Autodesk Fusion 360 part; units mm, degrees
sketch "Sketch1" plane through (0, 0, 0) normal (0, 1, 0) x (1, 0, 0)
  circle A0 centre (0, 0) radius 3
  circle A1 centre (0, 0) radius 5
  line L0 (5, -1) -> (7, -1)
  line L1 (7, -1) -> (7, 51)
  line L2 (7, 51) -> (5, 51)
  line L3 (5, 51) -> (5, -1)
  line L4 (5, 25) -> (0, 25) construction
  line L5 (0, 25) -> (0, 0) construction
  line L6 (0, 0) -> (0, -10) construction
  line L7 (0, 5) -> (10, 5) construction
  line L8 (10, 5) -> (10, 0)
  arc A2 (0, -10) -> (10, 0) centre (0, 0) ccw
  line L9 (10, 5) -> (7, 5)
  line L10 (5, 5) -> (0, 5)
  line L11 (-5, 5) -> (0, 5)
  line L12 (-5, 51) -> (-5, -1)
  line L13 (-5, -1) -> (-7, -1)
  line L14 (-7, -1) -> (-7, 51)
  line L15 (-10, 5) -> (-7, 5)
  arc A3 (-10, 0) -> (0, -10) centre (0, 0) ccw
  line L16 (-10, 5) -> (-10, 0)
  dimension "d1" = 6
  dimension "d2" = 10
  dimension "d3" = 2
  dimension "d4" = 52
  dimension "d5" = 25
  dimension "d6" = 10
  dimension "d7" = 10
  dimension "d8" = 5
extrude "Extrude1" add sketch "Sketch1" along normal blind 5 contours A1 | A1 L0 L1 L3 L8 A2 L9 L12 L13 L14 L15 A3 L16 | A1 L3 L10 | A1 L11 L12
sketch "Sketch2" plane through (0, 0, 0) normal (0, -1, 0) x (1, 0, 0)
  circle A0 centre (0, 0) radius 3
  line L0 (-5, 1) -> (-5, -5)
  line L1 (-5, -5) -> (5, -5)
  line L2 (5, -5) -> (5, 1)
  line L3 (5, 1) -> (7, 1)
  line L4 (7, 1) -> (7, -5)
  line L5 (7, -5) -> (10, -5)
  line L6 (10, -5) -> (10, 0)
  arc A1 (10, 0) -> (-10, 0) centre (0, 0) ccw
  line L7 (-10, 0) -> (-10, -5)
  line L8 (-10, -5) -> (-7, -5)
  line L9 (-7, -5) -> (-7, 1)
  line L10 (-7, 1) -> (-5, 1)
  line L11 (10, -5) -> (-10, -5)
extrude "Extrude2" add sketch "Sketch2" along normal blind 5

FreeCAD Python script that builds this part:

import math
import FreeCAD as App
import Part
import Sketcher

V = App.Vector

doc = App.newDocument("Part")
body = doc.addObject("PartDesign::Body", "Body")

# Sketch on XZ plane
sketch1 = doc.addObject("Sketcher::SketchObject", "Sketch")
body.addObject(sketch1)
sketch1.AttachmentSupport = (doc.XZ_Plane, [""])
sketch1.MapMode = "FlatFace"
sketch1.addGeometry(Part.LineSegment(V(5, 1, 0), V(5, -5, 0)), False)
sketch1.addGeometry(Part.LineSegment(V(5, -5, 0), V(-5, -5, 0)), False)
sketch1.addGeometry(Part.LineSegment(V(-5, -5, 0), V(-5, 1, 0)), False)
sketch1.addGeometry(Part.LineSegment(V(-5, 1, 0), V(-7, 1, 0)), False)
sketch1.addGeometry(Part.LineSegment(V(-7, 1, 0), V(-7, -5, 0)), False)
sketch1.addGeometry(Part.LineSegment(V(-7, -5, 0), V(-10, -5, 0)), False)
sketch1.addGeometry(Part.LineSegment(V(-10, -5, 0), V(-10, 0, 0)), False)
sketch1.addGeometry(Part.ArcOfCircle(Part.Circle(V(0, 0, 0), V(0, 0, 1), 10), math.radians(0), math.radians(180)), False)
sketch1.addGeometry(Part.LineSegment(V(10, 0, 0), V(10, -5, 0)), False)
sketch1.addGeometry(Part.LineSegment(V(10, -5, 0), V(7, -5, 0)), False)
sketch1.addGeometry(Part.LineSegment(V(7, -5, 0), V(7, 1, 0)), False)
sketch1.addGeometry(Part.LineSegment(V(7, 1, 0), V(5, 1, 0)), False)
sketch1.addGeometry(Part.Circle(V(0, 0, 0), V(0, 0, 1), 3), False)
sketch1.addConstraint(Sketcher.Constraint("Coincident", 0, 2, 1, 1))
sketch1.addConstraint(Sketcher.Constraint("Coincident", 1, 2, 2, 1))
sketch1.addConstraint(Sketcher.Constraint("Coincident", 2, 2, 3, 1))
sketch1.addConstraint(Sketcher.Constraint("Coincident", 3, 2, 4, 1))
sketch1.addConstraint(Sketcher.Constraint("Coincident", 4, 2, 5, 1))
sketch1.addConstraint(Sketcher.Constraint("Coincident", 5, 2, 6, 1))
sketch1.addConstraint(Sketcher.Constraint("Tangent", 6, 2, 7, 2))
sketch1.addConstraint(Sketcher.Constraint("Tangent", 7, 1, 8, 1))
sketch1.addConstraint(Sketcher.Constraint("Coincident", 8, 2, 9, 1))
sketch1.addConstraint(Sketcher.Constraint("Coincident", 9, 2, 10, 1))
sketch1.addConstraint(Sketcher.Constraint("Coincident", 10, 2, 11, 1))
sketch1.addConstraint(Sketcher.Constraint("Coincident", 11, 2, 0, 1))
sketch1.addConstraint(Sketcher.Constraint("Vertical", 0))
sketch1.addConstraint(Sketcher.Constraint("Horizontal", 1))
sketch1.addConstraint(Sketcher.Constraint("Vertical", 2))
sketch1.addConstraint(Sketcher.Constraint("Horizontal", 3))
sketch1.addConstraint(Sketcher.Constraint("Vertical", 4))
sketch1.addConstraint(Sketcher.Constraint("Horizontal", 5))
sketch1.addConstraint(Sketcher.Constraint("Vertical", 6))
sketch1.addConstraint(Sketcher.Constraint("Vertical", 8))
sketch1.addConstraint(Sketcher.Constraint("Horizontal", 9))
sketch1.addConstraint(Sketcher.Constraint("Vertical", 10))
sketch1.addConstraint(Sketcher.Constraint("Horizontal", 11))
sketch1.addConstraint(Sketcher.Constraint("Coincident", 7, 3, -1, 1))
sketch1.addConstraint(Sketcher.Constraint("Coincident", 12, 3, -1, 1))
sketch1.addConstraint(Sketcher.Constraint("Symmetric", 4, 2, 9, 2, -2))
sketch1.addConstraint(Sketcher.Constraint("Symmetric", 2, 2, 11, 2, -2))
sketch1.addConstraint(Sketcher.Constraint("Horizontal", 1, 2, 4, 2))
sketch1.addConstraint(Sketcher.Constraint("Diameter", 12, 6.0))
sketch1.addConstraint(Sketcher.Constraint("Radius", 7, 10.0))
sketch1.addConstraint(Sketcher.Constraint("DistanceX", 1, 2, 1, 1, 10.0))
sketch1.addConstraint(Sketcher.Constraint("DistanceX", 3, 2, 3, 1, 2.0))
sketch1.addConstraint(Sketcher.Constraint("DistanceY", 0, 2, 0, 1, 6.0))
sketch1.addConstraint(Sketcher.Constraint("DistanceY", 6, 1, 6, 2, 5.0))
pad1 = doc.addObject("PartDesign::Pad", "Pad")
body.addObject(pad1)
pad1.Profile = sketch1
pad1.Length = 5
pad1.Reversed = True

# Sketch on XZ plane
sketch2 = doc.addObject("Sketcher::SketchObject", "Sketch001")
body.addObject(sketch2)
sketch2.AttachmentSupport = (doc.XZ_Plane, [""])
sketch2.MapMode = "FlatFace"
sketch2.addGeometry(Part.LineSegment(V(-10, -5, 0), V(10, -5, 0)), False)
sketch2.addGeometry(Part.LineSegment(V(10, -5, 0), V(10, 0, 0)), False)
sketch2.addGeometry(Part.ArcOfCircle(Part.Circle(V(0, 0, 0), V(0, 0, 1), 10), math.radians(0), math.radians(180)), False)
sketch2.addGeometry(Part.LineSegment(V(-10, 0, 0), V(-10, -5, 0)), False)
sketch2.addGeometry(Part.Circle(V(0, 0, 0), V(0, 0, 1), 3), False)
sketch2.addConstraint(Sketcher.Constraint("Coincident", 0, 2, 1, 1))
sketch2.addConstraint(Sketcher.Constraint("Tangent", 1, 2, 2, 1))
sketch2.addConstraint(Sketcher.Constraint("Tangent", 2, 2, 3, 1))
sketch2.addConstraint(Sketcher.Constraint("Coincident", 3, 2, 0, 1))
sketch2.addConstraint(Sketcher.Constraint("Horizontal", 0))
sketch2.addConstraint(Sketcher.Constraint("Vertical", 1))
sketch2.addConstraint(Sketcher.Constraint("Vertical", 3))
sketch2.addConstraint(Sketcher.Constraint("Coincident", 2, 3, -1, 1))
sketch2.addConstraint(Sketcher.Constraint("Coincident", 4, 3, -1, 1))
sketch2.addConstraint(Sketcher.Constraint("Diameter", 4, 6.0))
sketch2.addConstraint(Sketcher.Constraint("Radius", 2, 10.0))
sketch2.addConstraint(Sketcher.Constraint("DistanceY", 1, 1, 1, 2, 5.0))
pad2 = doc.addObject("PartDesign::Pad", "Pad001")
body.addObject(pad2)
pad2.Profile = sketch2
pad2.Length = 5

doc.recompute()
